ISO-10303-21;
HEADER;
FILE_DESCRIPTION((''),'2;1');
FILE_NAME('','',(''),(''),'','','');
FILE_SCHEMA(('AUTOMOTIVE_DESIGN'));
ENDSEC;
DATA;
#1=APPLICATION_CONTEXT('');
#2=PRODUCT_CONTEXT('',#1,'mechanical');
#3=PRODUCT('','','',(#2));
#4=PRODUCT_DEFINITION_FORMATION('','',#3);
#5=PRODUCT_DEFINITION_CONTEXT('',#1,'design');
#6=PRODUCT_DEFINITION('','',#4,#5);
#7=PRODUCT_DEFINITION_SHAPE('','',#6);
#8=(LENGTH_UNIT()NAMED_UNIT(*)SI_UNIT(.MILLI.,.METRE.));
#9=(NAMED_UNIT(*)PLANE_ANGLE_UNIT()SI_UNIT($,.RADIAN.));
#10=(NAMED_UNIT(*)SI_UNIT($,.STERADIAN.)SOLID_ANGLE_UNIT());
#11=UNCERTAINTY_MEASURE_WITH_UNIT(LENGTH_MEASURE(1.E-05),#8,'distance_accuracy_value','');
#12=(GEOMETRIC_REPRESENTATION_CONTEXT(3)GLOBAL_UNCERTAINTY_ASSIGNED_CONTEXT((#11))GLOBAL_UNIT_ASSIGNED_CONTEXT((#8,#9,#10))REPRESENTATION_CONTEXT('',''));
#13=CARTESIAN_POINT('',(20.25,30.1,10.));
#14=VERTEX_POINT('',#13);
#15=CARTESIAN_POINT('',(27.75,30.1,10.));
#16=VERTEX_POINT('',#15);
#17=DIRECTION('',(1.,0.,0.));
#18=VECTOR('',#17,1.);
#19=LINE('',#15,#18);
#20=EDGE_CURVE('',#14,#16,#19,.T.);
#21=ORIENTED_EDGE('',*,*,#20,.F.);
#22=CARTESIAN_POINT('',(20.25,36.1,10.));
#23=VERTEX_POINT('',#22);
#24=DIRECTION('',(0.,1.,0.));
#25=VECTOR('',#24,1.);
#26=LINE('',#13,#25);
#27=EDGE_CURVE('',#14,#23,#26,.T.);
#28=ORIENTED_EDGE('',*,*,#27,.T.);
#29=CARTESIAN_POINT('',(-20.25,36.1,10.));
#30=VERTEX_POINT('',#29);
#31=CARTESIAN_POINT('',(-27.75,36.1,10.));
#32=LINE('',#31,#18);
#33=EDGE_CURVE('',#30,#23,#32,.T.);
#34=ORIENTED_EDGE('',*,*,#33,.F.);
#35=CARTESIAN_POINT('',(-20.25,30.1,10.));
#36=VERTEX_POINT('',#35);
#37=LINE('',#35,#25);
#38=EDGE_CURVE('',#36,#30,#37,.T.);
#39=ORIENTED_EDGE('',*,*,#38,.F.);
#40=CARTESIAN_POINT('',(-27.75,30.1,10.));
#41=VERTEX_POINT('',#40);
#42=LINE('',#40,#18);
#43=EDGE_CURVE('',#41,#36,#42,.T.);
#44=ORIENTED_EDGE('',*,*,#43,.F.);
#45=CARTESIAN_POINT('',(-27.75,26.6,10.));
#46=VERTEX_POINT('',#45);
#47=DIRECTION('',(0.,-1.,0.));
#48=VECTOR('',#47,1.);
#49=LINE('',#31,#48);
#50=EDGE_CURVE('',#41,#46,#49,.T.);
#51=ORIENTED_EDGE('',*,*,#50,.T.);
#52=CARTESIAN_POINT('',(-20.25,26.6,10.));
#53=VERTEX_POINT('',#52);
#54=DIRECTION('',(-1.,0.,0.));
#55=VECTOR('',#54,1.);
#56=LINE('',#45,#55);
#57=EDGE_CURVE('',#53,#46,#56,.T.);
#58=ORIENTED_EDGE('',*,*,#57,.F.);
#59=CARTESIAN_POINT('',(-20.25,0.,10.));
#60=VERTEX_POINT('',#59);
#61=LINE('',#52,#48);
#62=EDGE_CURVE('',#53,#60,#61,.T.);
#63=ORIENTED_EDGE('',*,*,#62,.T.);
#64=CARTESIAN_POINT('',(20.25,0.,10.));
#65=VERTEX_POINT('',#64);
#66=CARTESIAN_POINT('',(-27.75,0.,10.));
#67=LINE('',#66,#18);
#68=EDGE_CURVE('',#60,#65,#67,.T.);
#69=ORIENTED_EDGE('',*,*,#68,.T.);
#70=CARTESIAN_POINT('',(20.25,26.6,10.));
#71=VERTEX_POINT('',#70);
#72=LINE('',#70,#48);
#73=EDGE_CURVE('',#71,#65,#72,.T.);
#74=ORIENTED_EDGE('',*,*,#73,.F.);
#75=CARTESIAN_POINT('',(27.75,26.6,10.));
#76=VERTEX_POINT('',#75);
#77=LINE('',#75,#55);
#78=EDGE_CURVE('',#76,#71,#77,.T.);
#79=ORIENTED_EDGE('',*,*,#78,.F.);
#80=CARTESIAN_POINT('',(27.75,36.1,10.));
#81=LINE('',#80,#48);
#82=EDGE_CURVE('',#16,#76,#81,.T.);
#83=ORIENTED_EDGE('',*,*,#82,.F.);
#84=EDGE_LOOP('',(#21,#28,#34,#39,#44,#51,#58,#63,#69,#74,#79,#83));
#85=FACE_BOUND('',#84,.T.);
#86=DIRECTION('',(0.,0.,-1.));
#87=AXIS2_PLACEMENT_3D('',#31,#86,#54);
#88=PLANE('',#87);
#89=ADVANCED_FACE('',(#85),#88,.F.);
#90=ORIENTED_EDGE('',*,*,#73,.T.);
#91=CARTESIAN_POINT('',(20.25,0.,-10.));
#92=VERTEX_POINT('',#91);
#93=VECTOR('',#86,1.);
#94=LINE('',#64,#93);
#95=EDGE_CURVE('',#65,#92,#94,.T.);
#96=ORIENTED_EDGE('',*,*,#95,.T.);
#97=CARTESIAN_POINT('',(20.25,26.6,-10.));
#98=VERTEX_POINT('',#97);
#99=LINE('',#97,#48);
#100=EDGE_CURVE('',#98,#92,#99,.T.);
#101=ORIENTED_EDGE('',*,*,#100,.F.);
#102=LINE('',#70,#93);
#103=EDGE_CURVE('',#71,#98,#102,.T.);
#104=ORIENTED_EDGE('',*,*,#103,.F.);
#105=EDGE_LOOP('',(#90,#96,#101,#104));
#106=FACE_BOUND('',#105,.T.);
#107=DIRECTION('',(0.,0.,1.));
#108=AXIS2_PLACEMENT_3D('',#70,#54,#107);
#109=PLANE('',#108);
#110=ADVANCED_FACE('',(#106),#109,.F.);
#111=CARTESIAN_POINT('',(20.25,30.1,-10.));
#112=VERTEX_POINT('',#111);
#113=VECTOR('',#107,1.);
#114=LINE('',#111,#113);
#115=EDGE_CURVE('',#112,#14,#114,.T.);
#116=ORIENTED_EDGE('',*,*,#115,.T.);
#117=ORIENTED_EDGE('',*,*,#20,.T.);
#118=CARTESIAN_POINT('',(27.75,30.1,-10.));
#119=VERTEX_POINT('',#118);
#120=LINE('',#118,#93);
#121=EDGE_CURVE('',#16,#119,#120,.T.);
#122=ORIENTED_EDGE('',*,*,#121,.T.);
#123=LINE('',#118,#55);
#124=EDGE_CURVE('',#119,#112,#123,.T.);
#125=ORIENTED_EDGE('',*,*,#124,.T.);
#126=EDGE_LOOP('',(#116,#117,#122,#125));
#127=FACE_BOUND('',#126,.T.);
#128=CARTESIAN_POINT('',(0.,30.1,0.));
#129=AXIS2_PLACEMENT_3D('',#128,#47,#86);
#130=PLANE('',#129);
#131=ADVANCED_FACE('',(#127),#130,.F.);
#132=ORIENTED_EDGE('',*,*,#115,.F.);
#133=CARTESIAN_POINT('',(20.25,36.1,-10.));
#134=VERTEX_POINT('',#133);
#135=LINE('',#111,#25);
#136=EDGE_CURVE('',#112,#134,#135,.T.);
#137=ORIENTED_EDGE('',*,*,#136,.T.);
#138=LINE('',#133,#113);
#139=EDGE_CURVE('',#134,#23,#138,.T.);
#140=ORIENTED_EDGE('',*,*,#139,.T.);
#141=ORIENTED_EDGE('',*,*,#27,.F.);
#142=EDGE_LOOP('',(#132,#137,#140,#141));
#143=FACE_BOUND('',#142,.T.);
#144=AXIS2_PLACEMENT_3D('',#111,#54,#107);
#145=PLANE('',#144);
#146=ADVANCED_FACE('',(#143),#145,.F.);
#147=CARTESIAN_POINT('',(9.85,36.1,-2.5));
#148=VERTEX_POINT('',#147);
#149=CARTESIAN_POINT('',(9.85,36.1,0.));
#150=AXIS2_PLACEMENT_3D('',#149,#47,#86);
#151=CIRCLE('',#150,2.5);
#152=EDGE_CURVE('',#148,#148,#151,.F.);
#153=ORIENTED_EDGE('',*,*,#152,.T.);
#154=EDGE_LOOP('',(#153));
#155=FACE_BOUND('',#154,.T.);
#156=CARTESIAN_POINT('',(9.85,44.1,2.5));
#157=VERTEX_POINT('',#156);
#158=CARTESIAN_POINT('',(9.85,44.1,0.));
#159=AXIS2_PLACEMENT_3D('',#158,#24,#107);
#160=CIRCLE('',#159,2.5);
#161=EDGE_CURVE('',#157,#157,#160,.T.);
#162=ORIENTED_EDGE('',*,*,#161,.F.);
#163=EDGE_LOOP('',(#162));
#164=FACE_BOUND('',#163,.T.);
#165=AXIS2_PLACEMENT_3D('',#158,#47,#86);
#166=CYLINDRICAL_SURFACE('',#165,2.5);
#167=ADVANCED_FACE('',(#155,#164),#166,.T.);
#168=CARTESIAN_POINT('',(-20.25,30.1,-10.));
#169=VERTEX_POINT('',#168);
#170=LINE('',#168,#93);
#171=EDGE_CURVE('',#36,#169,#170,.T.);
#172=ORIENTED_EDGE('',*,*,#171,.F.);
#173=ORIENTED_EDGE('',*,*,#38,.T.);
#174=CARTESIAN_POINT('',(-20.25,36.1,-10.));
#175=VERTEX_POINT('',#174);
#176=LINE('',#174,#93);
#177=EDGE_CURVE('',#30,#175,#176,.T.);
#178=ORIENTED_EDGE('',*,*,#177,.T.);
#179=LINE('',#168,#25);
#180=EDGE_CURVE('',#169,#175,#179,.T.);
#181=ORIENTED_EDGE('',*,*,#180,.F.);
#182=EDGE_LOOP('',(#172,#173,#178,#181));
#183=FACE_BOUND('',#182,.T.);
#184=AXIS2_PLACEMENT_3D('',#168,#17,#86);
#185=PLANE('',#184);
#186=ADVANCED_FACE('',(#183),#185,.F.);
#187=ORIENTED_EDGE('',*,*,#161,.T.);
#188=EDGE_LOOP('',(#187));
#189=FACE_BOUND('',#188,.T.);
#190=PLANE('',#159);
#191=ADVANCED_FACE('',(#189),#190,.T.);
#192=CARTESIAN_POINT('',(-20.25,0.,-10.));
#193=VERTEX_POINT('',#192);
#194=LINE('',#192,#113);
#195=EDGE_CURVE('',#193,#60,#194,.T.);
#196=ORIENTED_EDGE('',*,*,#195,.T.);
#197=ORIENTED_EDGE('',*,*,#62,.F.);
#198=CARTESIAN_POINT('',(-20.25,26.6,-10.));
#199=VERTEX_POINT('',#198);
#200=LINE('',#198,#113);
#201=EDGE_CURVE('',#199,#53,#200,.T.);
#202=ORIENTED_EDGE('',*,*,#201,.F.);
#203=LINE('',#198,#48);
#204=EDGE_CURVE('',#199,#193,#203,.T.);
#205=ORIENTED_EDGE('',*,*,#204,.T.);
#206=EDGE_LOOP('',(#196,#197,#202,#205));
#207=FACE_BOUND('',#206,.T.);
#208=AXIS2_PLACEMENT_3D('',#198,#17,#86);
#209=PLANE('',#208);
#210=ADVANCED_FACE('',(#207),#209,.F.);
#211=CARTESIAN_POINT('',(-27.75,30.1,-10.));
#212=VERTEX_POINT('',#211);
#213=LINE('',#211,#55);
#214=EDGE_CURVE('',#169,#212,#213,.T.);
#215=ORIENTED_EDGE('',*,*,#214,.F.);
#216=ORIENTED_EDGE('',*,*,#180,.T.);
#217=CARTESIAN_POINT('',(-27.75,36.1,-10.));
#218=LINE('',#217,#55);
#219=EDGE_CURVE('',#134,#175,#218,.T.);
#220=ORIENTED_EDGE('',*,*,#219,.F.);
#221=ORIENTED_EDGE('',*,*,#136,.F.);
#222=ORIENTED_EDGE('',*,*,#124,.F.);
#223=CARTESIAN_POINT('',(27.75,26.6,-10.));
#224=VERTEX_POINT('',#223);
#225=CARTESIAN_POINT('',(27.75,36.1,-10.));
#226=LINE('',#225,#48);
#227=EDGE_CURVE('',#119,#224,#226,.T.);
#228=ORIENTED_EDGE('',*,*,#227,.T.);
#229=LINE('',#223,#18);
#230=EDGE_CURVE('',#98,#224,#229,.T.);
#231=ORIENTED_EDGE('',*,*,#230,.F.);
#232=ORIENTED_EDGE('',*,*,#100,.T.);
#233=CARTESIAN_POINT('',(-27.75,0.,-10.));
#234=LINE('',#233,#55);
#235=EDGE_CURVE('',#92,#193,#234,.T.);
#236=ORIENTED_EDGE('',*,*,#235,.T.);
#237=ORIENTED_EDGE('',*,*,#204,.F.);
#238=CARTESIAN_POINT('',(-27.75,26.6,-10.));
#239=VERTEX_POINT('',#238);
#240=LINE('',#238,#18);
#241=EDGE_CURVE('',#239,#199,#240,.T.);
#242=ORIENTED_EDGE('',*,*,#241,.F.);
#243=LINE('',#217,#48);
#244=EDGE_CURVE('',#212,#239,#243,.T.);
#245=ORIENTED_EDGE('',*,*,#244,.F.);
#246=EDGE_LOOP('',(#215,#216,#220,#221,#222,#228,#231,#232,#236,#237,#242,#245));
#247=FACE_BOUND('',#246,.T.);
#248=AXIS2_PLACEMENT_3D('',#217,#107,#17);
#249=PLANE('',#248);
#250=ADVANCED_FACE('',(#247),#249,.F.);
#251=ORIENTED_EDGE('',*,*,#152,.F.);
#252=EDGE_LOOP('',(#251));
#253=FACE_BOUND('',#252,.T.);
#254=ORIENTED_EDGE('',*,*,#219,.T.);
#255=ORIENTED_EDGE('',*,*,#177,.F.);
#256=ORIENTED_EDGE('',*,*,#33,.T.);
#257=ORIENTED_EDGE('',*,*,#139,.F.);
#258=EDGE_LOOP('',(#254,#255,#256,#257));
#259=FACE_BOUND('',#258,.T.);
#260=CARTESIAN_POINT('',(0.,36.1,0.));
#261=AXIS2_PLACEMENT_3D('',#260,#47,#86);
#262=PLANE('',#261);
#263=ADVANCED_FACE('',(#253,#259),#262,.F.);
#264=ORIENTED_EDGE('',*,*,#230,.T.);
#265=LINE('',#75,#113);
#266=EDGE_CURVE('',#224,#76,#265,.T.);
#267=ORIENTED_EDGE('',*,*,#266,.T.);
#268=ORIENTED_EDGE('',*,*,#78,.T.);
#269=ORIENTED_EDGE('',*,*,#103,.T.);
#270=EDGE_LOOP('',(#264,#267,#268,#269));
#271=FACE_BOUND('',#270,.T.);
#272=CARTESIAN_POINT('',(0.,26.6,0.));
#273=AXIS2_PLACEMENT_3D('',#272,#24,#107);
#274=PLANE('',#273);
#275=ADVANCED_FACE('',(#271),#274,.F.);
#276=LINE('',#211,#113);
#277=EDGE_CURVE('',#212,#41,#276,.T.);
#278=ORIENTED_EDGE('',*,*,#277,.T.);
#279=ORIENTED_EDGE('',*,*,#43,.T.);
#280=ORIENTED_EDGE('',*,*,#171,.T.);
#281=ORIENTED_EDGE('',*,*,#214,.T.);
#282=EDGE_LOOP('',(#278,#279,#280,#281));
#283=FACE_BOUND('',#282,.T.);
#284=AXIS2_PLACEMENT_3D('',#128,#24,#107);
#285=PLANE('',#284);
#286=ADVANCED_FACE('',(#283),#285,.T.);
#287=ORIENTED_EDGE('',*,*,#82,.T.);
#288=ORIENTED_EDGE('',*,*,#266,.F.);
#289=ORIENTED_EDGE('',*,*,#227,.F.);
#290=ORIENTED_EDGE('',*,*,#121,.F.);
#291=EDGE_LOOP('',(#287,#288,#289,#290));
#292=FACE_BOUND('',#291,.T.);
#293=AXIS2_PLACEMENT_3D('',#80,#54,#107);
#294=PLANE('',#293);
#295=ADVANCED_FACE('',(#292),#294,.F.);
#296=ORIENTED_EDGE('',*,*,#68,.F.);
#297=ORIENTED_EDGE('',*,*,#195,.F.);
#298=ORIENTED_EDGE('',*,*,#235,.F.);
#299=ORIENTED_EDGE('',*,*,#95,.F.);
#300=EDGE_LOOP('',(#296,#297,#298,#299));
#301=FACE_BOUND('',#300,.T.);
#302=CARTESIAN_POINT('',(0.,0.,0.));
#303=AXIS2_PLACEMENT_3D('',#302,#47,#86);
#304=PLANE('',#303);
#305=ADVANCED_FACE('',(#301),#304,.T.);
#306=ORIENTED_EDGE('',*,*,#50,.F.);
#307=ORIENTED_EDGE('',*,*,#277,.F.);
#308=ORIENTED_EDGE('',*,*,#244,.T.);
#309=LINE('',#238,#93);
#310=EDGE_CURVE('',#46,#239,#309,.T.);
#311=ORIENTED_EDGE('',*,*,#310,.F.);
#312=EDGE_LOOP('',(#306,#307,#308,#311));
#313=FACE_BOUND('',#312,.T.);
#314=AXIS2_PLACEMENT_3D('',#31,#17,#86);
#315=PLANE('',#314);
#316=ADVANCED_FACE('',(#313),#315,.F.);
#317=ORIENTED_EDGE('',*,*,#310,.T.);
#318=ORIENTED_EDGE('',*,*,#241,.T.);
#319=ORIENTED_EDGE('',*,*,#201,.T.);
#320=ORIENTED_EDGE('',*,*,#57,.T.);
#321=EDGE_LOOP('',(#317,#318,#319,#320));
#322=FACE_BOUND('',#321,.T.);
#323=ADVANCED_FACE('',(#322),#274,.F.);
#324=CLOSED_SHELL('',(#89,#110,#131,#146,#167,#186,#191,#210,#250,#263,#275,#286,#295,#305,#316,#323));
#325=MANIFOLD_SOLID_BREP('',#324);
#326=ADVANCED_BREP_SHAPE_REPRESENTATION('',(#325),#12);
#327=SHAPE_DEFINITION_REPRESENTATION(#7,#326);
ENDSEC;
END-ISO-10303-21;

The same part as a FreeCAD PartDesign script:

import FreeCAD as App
import Part
import Sketcher
from FreeCAD import Vector
Q = App.Units.Quantity

doc = App.newDocument("Part")
body = doc.addObject("PartDesign::Body", "Body")

# Sketch on XZ plane
sketch1 = body.newObject("Sketcher::SketchObject", "Sketch")
sketch1.AttachmentSupport = (doc.getObject("XZ_Plane"), [""])
sketch1.MapMode = "FlatFace"
sketch1.addGeometry(Part.LineSegment(Vector(-27.75, -10, 0), Vector(-27.75, 10, 0)), False)
sketch1.addGeometry(Part.LineSegment(Vector(-27.75, 10, 0), Vector(27.75, 10, 0)), False)
sketch1.addGeometry(Part.LineSegment(Vector(27.75, 10, 0), Vector(27.75, -10, 0)), False)
sketch1.addGeometry(Part.LineSegment(Vector(27.75, -10, 0), Vector(-27.75, -10, 0)), False)
sketch1.addConstraint(Sketcher.Constraint("Coincident", 0, 2, 1, 1))
sketch1.addConstraint(Sketcher.Constraint("Coincident", 1, 2, 2, 1))
sketch1.addConstraint(Sketcher.Constraint("Coincident", 2, 2, 3, 1))
sketch1.addConstraint(Sketcher.Constraint("Coincident", 3, 2, 0, 1))
sketch1.addConstraint(Sketcher.Constraint("Vertical", 0))
sketch1.addConstraint(Sketcher.Constraint("Horizontal", 1))
sketch1.addConstraint(Sketcher.Constraint("Vertical", 2))
sketch1.addConstraint(Sketcher.Constraint("Horizontal", 3))
sketch1.addConstraint(Sketcher.Constraint("Symmetric", 0, 2, 2, 2, -1, 1))
sketch1.addConstraint(Sketcher.Constraint("DistanceY", 0, 1, 0, 2, Q("20 mm")))
sketch1.addConstraint(Sketcher.Constraint("DistanceX", 1, 1, 1, 2, Q("55.5 mm")))
pad1 = body.newObject("PartDesign::Pad", "Pad")
pad1.Profile = sketch1
pad1.Length = 36.1
pad1.Reversed = True

# Sketch on XZ plane
sketch2 = body.newObject("Sketcher::SketchObject", "Sketch001")
sketch2.AttachmentSupport = (doc.getObject("XZ_Plane"), [""])
sketch2.MapMode = "FlatFace"
sketch2.addGeometry(Part.LineSegment(Vector(20.25, 10, 0), Vector(20.25, -10, 0)), False)
sketch2.addGeometry(Part.LineSegment(Vector(20.25, -10, 0), Vector(27.75, -10, 0)), False)
sketch2.addGeometry(Part.LineSegment(Vector(27.75, -10, 0), Vector(27.75, 10, 0)), False)
sketch2.addGeometry(Part.LineSegment(Vector(27.75, 10, 0), Vector(20.25, 10, 0)), False)
sketch2.addGeometry(Part.LineSegment(Vector(-27.75, 10, 0), Vector(-27.75, -10, 0)), False)
sketch2.addGeometry(Part.LineSegment(Vector(-27.75, -10, 0), Vector(-20.25, -10, 0)), False)
sketch2.addGeometry(Part.LineSegment(Vector(-20.25, -10, 0), Vector(-20.25, 10, 0)), False)
sketch2.addGeometry(Part.LineSegment(Vector(-20.25, 10, 0), Vector(-27.75, 10, 0)), False)
sketch2.addConstraint(Sketcher.Constraint("Coincident", 0, 2, 1, 1))
sketch2.addConstraint(Sketcher.Constraint("Coincident", 1, 2, 2, 1))
sketch2.addConstraint(Sketcher.Constraint("Coincident", 2, 2, 3, 1))
sketch2.addConstraint(Sketcher.Constraint("Coincident", 3, 2, 0, 1))
sketch2.addConstraint(Sketcher.Constraint("Coincident", 4, 2, 5, 1))
sketch2.addConstraint(Sketcher.Constraint("Coincident", 5, 2, 6, 1))
sketch2.addConstraint(Sketcher.Constraint("Coincident", 6, 2, 7, 1))
sketch2.addConstraint(Sketcher.Constraint("Coincident", 7, 2, 4, 1))
sketch2.addConstraint(Sketcher.Constraint("Vertical", 0))
sketch2.addConstraint(Sketcher.Constraint("Horizontal", 1))
sketch2.addConstraint(Sketcher.Constraint("Vertical", 2))
sketch2.addConstraint(Sketcher.Constraint("Horizontal", 3))
sketch2.addConstraint(Sketcher.Constraint("Vertical", 4))
sketch2.addConstraint(Sketcher.Constraint("Horizontal", 5))
sketch2.addConstraint(Sketcher.Constraint("Vertical", 6))
sketch2.addConstraint(Sketcher.Constraint("Horizontal", 7))
sketch2.addConstraint(Sketcher.Constraint("Symmetric", 2, 2, 4, 2, -1, 1))
sketch2.addConstraint(Sketcher.Constraint("Symmetric", 0, 2, 6, 2, -1, 1))
sketch2.addConstraint(Sketcher.Constraint("Horizontal", 1, 2, 4, 2))
sketch2.addConstraint(Sketcher.Constraint("DistanceY", 0, 2, 0, 1, Q("20 mm")))
sketch2.addConstraint(Sketcher.Constraint("DistanceX", 1, 1, 1, 2, Q("7.5 mm")))
sketch2.addConstraint(Sketcher.Constraint("DistanceX", 4, 2, 0, 2, Q("48 mm")))
pocket1 = body.newObject("PartDesign::Pocket", "Pocket")
pocket1.Profile = sketch2
pocket1.Length = 26.6

# Sketch on XZ plane
sketch3 = body.newObject("Sketcher::SketchObject", "Sketch002")
sketch3.AttachmentSupport = (doc.getObject("XZ_Plane"), [""])
sketch3.MapMode = "FlatFace"
sketch3.AttachmentOffset = App.Placement(Vector(0, 0, -36.1), App.Rotation())
sketch3.addGeometry(Part.LineSegment(Vector(20.25, -10, 0), Vector(20.25, 10, 0)), False)
sketch3.addGeometry(Part.LineSegment(Vector(20.25, 10, 0), Vector(27.75, 10, 0)), False)
sketch3.addGeometry(Part.LineSegment(Vector(27.75, 10, 0), Vector(27.75, -10, 0)), False)
sketch3.addGeometry(Part.LineSegment(Vector(27.75, -10, 0), Vector(20.25, -10, 0)), False)
sketch3.addGeometry(Part.LineSegment(Vector(-27.75, -10, 0), Vector(-27.75, 10, 0)), False)
sketch3.addGeometry(Part.LineSegment(Vector(-27.75, 10, 0), Vector(-20.25, 10, 0)), False)
sketch3.addGeometry(Part.LineSegment(Vector(-20.25, 10, 0), Vector(-20.25, -10, 0)), False)
sketch3.addGeometry(Part.LineSegment(Vector(-20.25, -10, 0), Vector(-27.75, -10, 0)), False)
sketch3.addConstraint(Sketcher.Constraint("Coincident", 0, 2, 1, 1))
sketch3.addConstraint(Sketcher.Constraint("Coincident", 1, 2, 2, 1))
sketch3.addConstraint(Sketcher.Constraint("Coincident", 2, 2, 3, 1))
sketch3.addConstraint(Sketcher.Constraint("Coincident", 3, 2, 0, 1))
sketch3.addConstraint(Sketcher.Constraint("Coincident", 4, 2, 5, 1))
sketch3.addConstraint(Sketcher.Constraint("Coincident", 5, 2, 6, 1))
sketch3.addConstraint(Sketcher.Constraint("Coincident", 6, 2, 7, 1))
sketch3.addConstraint(Sketcher.Constraint("Coincident", 7, 2, 4, 1))
sketch3.addConstraint(Sketcher.Constraint("Vertical", 0))
sketch3.addConstraint(Sketcher.Constraint("Horizontal", 1))
sketch3.addConstraint(Sketcher.Constraint("Vertical", 2))
sketch3.addConstraint(Sketcher.Constraint("Horizontal", 3))
sketch3.addConstraint(Sketcher.Constraint("Vertical", 4))
sketch3.addConstraint(Sketcher.Constraint("Horizontal", 5))
sketch3.addConstraint(Sketcher.Constraint("Vertical", 6))
sketch3.addConstraint(Sketcher.Constraint("Horizontal", 7))
sketch3.addConstraint(Sketcher.Constraint("Symmetric", 2, 2, 4, 2, -1, 1))
sketch3.addConstraint(Sketcher.Constraint("Symmetric", 0, 2, 6, 2, -1, 1))
sketch3.addConstraint(Sketcher.Constraint("Horizontal", 1, 2, 4, 2))
sketch3.addConstraint(Sketcher.Constraint("DistanceY", 0, 1, 0, 2, Q("20 mm")))
sketch3.addConstraint(Sketcher.Constraint("DistanceX", 1, 1, 1, 2, Q("7.5 mm")))
sketch3.addConstraint(Sketcher.Constraint("DistanceX", 4, 2, 0, 2, Q("48 mm")))
pocket2 = body.newObject("PartDesign::Pocket", "Pocket001")
pocket2.Profile = sketch3
pocket2.Length = 6
pocket2.Reversed = True

# Sketch on XZ plane
sketch4 = body.newObject("Sketcher::SketchObject", "Sketch003")
sketch4.AttachmentSupport = (doc.getObject("XZ_Plane"), [""])
sketch4.MapMode = "FlatFace"
sketch4.AttachmentOffset = App.Placement(Vector(0, 0, -36.1), App.Rotation())
sketch4.addGeometry(Part.Circle(Vector(9.85, 0, 0), Vector(0, 0, 1), 2.5), False)
sketch4.addConstraint(Sketcher.Constraint("PointOnObject", 0, 3, -1))
sketch4.addConstraint(Sketcher.Constraint("Diameter", 0, Q("5 mm")))
sketch4.addConstraint(Sketcher.Constraint("DistanceX", -1, 1, 0, 3, Q("9.85 mm")))
pad2 = body.newObject("PartDesign::Pad", "Pad001")
pad2.Profile = sketch4
pad2.Length = 8
pad2.Reversed = True

doc.recompute()
